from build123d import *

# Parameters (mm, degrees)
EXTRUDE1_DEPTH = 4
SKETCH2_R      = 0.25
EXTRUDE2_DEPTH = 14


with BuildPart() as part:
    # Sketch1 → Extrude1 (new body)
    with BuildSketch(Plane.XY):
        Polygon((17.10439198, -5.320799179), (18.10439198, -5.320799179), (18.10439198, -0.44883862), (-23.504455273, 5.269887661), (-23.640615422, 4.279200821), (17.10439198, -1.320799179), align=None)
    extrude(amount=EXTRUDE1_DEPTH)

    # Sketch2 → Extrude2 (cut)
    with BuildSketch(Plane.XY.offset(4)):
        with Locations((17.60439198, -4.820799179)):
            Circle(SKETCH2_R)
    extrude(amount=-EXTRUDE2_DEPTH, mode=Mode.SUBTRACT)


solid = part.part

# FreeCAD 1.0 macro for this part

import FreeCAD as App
import Part
import Sketcher
Q = App.Units.Quantity

doc = App.newDocument("Part")
params = doc.addObject("Spreadsheet::Sheet", "Params")
for row, (alias, value) in enumerate([
    ("sketch1_width", "1 mm"),
    ("sketch1_height", "4 mm"),
    ("sketch1_length", "42 mm"),
    ("sketch1_length2", "1 mm"),
    ("pad1_length", "4 mm"),
    ("sketch2_diameter", "0.5 mm"),
    ("pocket1_length", "14 mm"),
], start=1):
    params.set(f"A{row}", alias)
    params.set(f"B{row}", "=" + value)
    params.setAlias(f"B{row}", alias)

body = doc.addObject("PartDesign::Body", "Body")

sketch1 = body.newObject("Sketcher::SketchObject", "Sketch")
sketch1.AttachmentSupport = (doc.getObject("XY_Plane"), [""])
sketch1.MapMode = "FlatFace"
sketch1.addGeometry([
    Part.LineSegment(App.Vector(17.1, -5.3, 0), App.Vector(18.1, -5.3, 0)),
    Part.LineSegment(App.Vector(18.1, -5.3, 0), App.Vector(18.1, -0.4, 0)),
    Part.LineSegment(App.Vector(18.1, -0.4, 0), App.Vector(-23.5, 5.3, 0)),
    Part.LineSegment(App.Vector(-23.5, 5.3, 0), App.Vector(-23.6, 4.3, 0)),
    Part.LineSegment(App.Vector(-23.6, 4.3, 0), App.Vector(17.1, -1.3, 0)),
    Part.LineSegment(App.Vector(17.1, -1.3, 0), App.Vector(17.1, -5.3, 0)),
], False)
sketch1.addConstraint([
    Sketcher.Constraint("Coincident", 0, 2, 1, 1),
    Sketcher.Constraint("Coincident", 1, 2, 2, 1),
    Sketcher.Constraint("Coincident", 2, 2, 3, 1),
    Sketcher.Constraint("Coincident", 3, 2, 4, 1),
    Sketcher.Constraint("Coincident", 4, 2, 5, 1),
    Sketcher.Constraint("Coincident", 5, 2, 0, 1),
    Sketcher.Constraint("Horizontal", 0),
    Sketcher.Constraint("Vertical", 1),
    Sketcher.Constraint("Vertical", 5),
    Sketcher.Constraint("Perpendicular", 2, 3),
    Sketcher.Constraint("Perpendicular", 3, 4),
    Sketcher.Constraint("DistanceX", 0, 1, 0, 2, Q("1 mm")),
    Sketcher.Constraint("DistanceY", 5, 2, 5, 1, Q("4 mm")),
    Sketcher.Constraint("Distance", 2, Q("42 mm")),
    Sketcher.Constraint("Distance", 3, Q("1 mm")),
    Sketcher.Constraint("DistanceY", 0, 2, 3, 2, Q("9.6 mm")),
    Sketcher.Constraint("DistanceY", 0, 2, -1, 1, Q("5.320799 mm")),
    Sketcher.Constraint("DistanceX", -1, 1, 0, 2, Q("18.104392 mm")),
])
sketch1.setExpression("Constraints[11]", "Params.sketch1_width")
sketch1.setExpression("Constraints[12]", "Params.sketch1_height")
sketch1.setExpression("Constraints[13]", "Params.sketch1_length")
sketch1.setExpression("Constraints[14]", "Params.sketch1_length2")
pad1 = body.newObject("PartDesign::Pad", "Pad")
pad1.Profile = sketch1
pad1.setExpression("Length", "Params.pad1_length")

sketch2 = body.newObject("Sketcher::SketchObject", "Sketch001")
sketch2.AttachmentSupport = (doc.getObject("XY_Plane"), [""])
sketch2.MapMode = "FlatFace"
sketch2.AttachmentOffset = App.Placement(App.Vector(0, 0, 4), App.Rotation())
sketch2.addGeometry(Part.Circle(App.Vector(17.6, -4.82, 0), App.Vector(0, 0, 1), 0.25), False)
sketch2.addConstraint([
    Sketcher.Constraint("Diameter", 0, Q("0.5 mm")),
    Sketcher.Constraint("DistanceY", 0, 3, -1, 1, Q("4.820799 mm")),
    Sketcher.Constraint("DistanceX", -1, 1, 0, 3, Q("17.604392 mm")),
])
sketch2.setExpression("Constraints[0]", "Params.sketch2_diameter")
pocket1 = body.newObject("PartDesign::Pocket", "Pocket")
pocket1.Profile = sketch2
pocket1.setExpression("Length", "Params.pocket1_length")

doc.recompute()
